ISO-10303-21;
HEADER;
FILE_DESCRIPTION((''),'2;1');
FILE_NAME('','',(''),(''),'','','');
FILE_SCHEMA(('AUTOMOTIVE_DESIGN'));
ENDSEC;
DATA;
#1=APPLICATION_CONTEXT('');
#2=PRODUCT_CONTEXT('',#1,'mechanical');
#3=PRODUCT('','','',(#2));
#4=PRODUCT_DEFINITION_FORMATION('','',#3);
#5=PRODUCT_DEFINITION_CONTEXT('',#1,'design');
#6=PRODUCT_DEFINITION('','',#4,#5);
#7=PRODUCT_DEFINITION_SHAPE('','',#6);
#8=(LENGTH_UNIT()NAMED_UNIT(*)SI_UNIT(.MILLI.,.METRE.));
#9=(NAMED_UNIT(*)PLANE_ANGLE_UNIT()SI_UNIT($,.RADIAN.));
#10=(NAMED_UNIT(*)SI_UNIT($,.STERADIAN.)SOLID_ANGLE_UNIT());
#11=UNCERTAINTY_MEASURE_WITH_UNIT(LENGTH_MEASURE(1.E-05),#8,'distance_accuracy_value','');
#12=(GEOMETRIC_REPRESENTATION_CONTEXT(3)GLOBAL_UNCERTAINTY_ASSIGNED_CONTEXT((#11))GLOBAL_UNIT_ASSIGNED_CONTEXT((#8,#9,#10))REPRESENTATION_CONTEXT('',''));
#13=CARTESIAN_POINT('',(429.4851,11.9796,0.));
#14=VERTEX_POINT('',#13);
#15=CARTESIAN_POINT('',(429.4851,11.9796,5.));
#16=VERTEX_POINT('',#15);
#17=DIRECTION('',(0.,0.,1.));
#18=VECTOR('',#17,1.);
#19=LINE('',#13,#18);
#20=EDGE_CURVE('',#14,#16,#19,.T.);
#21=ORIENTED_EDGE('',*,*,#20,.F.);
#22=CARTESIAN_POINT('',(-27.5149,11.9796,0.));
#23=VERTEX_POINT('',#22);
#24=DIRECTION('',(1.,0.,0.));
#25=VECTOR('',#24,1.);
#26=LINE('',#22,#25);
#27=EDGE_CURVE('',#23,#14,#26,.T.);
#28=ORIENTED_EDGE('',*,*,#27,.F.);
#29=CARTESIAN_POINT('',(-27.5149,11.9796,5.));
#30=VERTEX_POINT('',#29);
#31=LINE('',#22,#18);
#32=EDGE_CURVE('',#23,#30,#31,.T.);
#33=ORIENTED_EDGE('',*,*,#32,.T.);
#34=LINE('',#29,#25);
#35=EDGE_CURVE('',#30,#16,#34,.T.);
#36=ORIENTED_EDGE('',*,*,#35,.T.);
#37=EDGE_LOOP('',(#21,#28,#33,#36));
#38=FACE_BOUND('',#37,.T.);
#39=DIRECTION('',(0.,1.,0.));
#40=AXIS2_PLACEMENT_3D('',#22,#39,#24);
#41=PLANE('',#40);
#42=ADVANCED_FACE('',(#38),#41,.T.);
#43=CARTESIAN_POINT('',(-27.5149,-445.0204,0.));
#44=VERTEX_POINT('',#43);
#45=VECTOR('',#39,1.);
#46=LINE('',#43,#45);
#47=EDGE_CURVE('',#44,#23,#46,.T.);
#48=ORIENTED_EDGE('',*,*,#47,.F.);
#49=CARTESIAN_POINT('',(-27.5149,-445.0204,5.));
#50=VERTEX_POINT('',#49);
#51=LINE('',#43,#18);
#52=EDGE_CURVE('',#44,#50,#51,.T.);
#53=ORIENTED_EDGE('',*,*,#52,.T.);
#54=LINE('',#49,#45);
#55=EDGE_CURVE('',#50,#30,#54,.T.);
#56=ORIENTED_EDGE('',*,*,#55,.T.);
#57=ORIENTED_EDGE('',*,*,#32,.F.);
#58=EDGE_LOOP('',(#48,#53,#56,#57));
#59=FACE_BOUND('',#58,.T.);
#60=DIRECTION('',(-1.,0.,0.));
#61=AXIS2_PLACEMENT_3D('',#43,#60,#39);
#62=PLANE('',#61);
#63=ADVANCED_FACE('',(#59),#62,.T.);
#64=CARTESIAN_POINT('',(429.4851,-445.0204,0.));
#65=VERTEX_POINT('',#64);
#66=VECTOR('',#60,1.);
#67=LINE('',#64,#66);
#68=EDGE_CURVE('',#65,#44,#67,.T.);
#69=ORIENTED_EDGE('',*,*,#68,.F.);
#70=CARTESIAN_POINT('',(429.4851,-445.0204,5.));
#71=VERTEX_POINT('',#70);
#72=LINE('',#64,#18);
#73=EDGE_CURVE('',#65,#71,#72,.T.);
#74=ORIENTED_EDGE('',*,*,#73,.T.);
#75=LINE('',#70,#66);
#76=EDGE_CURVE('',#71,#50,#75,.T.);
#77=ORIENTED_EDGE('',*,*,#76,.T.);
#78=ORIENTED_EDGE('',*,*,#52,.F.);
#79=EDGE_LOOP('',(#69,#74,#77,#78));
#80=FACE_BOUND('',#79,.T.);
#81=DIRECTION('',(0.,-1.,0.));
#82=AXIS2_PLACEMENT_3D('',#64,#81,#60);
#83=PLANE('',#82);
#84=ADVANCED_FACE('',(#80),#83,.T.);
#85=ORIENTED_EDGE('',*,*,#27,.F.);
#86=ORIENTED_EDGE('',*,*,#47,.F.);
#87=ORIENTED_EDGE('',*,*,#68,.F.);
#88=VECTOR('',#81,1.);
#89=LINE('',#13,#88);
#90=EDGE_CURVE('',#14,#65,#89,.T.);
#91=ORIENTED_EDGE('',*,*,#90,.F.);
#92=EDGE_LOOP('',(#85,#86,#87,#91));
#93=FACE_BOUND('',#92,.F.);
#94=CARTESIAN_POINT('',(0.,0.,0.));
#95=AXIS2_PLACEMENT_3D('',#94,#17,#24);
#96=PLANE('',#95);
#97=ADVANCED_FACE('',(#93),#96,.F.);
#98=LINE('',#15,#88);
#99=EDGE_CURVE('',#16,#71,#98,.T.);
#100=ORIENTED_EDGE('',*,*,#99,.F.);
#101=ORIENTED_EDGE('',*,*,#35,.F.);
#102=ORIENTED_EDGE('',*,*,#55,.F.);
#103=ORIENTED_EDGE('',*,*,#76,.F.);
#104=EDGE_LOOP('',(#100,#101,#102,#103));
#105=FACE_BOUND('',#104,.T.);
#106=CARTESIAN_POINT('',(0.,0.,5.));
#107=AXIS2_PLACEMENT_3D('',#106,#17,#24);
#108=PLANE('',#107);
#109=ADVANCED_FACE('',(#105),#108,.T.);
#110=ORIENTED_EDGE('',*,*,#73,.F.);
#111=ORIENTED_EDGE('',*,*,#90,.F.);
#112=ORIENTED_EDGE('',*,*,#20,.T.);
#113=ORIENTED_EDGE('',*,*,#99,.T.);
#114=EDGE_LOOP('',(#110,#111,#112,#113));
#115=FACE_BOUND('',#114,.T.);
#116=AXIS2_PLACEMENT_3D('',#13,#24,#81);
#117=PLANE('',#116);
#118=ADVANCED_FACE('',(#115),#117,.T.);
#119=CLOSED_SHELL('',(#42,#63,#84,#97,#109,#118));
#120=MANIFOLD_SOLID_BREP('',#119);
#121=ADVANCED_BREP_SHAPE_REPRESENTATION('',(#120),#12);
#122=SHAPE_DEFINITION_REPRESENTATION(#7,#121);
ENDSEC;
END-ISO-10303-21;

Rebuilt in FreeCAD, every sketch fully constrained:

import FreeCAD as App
import Part
import Sketcher

V = App.Vector


def add_polygon(sketch, points):
    """Adds a closed chain of lines whose ends are joined by coincident constraints."""
    first, n = sketch.GeometryCount, len(points)
    for a, b in zip(points, points[1:] + points[:1]):
        sketch.addGeometry(Part.LineSegment(App.Vector(*a, 0), App.Vector(*b, 0)), False)
    for i in range(n):
        sketch.addConstraint(Sketcher.Constraint("Coincident", first + i, 2, first + (i + 1) % n, 1))

doc = App.newDocument("Part")
body = doc.addObject("PartDesign::Body", "Body")

sketch1 = doc.addObject("Sketcher::SketchObject", "Sketch")
body.addObject(sketch1)
sketch1.AttachmentSupport = (doc.XY_Plane, [""])
sketch1.MapMode = "FlatFace"
add_polygon(sketch1, [(429, 12), (-28, 12), (-28, -445), (429, -445)])
sketch1.addConstraint([
    Sketcher.Constraint("Horizontal", 0),
    Sketcher.Constraint("Vertical", 1),
    Sketcher.Constraint("Horizontal", 2),
    Sketcher.Constraint("Vertical", 3),
    Sketcher.Constraint("Equal", 2, 1),
    Sketcher.Constraint("DistanceX", 0, 2, 0, 1, 457.0),
    Sketcher.Constraint("DistanceX", 0, 2, -1, 1, 27.515),
    Sketcher.Constraint("DistanceY", -1, 1, 0, 2, 11.9796),
])
pad1 = doc.addObject("PartDesign::Pad", "Pad")
body.addObject(pad1)
pad1.Profile = sketch1
pad1.Length = 5

doc.recompute()
